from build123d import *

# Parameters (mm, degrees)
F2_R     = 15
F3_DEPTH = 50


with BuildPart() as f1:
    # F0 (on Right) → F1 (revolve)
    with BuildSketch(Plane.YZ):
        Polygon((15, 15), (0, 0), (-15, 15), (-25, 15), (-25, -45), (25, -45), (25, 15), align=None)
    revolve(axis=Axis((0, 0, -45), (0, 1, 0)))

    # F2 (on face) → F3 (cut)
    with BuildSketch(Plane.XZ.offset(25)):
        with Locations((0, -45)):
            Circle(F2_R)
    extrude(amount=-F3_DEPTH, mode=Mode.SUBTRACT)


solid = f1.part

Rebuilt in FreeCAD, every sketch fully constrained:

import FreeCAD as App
import Part
import Sketcher
from FreeCAD import Vector


def add_polygon(sketch, points):
    """Adds a closed chain of lines whose ends are joined by coincident constraints."""
    first, n = sketch.GeometryCount, len(points)
    for a, b in zip(points, points[1:] + points[:1]):
        sketch.addGeometry(Part.LineSegment(App.Vector(*a, 0), App.Vector(*b, 0)), False)
    for i in range(n):
        sketch.addConstraint(Sketcher.Constraint("Coincident", first + i, 2, first + (i + 1) % n, 1))

doc = App.newDocument("Part")
params = doc.addObject("Spreadsheet::Sheet", "Params")
for row, (alias, value) in enumerate([
    ("sketch1_width", "10 mm"),
    ("sketch1_width2", "50 mm"),
    ("sketch1_height", "60 mm"),
    ("revolution_angle", "360 deg"),
    ("sketch2_diameter", "30 mm"),
    ("pocket1_length", "50 mm"),
], start=1):
    params.set(f"A{row}", alias)
    params.set(f"B{row}", "=" + value)
    params.setAlias(f"B{row}", alias)

body = doc.addObject("PartDesign::Body", "Body")

# Sketch on YZ plane
sketch1 = doc.addObject("Sketcher::SketchObject", "Sketch")
body.addObject(sketch1)
sketch1.AttachmentSupport = (doc.YZ_Plane, [""])
sketch1.MapMode = "FlatFace"
add_polygon(sketch1, [(15, 15), (0, 0), (-15, 15), (-25, 15), (-25, -45), (25, -45), (25, 15)])  # lines 0-6
sketch1.addGeometry(Part.LineSegment(Vector(-25, -45, 0), Vector(25, -45, 0)), True)  # axis
sketch1.addConstraint([
    Sketcher.Constraint("Horizontal", 2),
    Sketcher.Constraint("Vertical", 3),
    Sketcher.Constraint("Horizontal", 4),
    Sketcher.Constraint("Vertical", 5),
    Sketcher.Constraint("Horizontal", 6),
    Sketcher.Constraint("Horizontal", 7),
    Sketcher.Constraint("Coincident", 0, 2, -1, 1),
    Sketcher.Constraint("Coincident", 7, 1, 3, 2),
    Sketcher.Constraint("Symmetric", 2, 2, 5, 2, -2),
    Sketcher.Constraint("Perpendicular", 0, 1),
    Sketcher.Constraint("Vertical", 5, 2, 7, 2),
    Sketcher.Constraint("Equal", 2, 6),
    Sketcher.Constraint("DistanceX", 2, 2, 2, 1, 10.0),
    Sketcher.Constraint("DistanceX", 4, 1, 4, 2, 50.0),
    Sketcher.Constraint("DistanceY", 3, 2, 3, 1, 60.0),
])
sketch1.setExpression("Constraints[19]", "Params.sketch1_width")
sketch1.setExpression("Constraints[20]", "Params.sketch1_width2")
sketch1.setExpression("Constraints[21]", "Params.sketch1_height")
revolution = doc.addObject("PartDesign::Revolution", "Revolution")
body.addObject(revolution)
revolution.Profile = sketch1
revolution.ReferenceAxis = (sketch1, ["Axis0"])
revolution.setExpression("Angle", "Params.revolution_angle")

# Sketch on XZ plane
sketch2 = doc.addObject("Sketcher::SketchObject", "Sketch001")
body.addObject(sketch2)
sketch2.AttachmentSupport = (doc.XZ_Plane, [""])
sketch2.MapMode = "FlatFace"
sketch2.AttachmentOffset = App.Placement(Vector(0, 0, 25), App.Rotation())
sketch2.addGeometry(Part.Circle(Vector(0, -45, 0), Vector(0, 0, 1), 15), False)
sketch2.addConstraint([
    Sketcher.Constraint("PointOnObject", 0, 3, -2),
    Sketcher.Constraint("Diameter", 0, 30.0),
    Sketcher.Constraint("DistanceY", 0, 3, -1, 1, 45.0),
])
sketch2.setExpression("Constraints[1]", "Params.sketch2_diameter")
pocket1 = doc.addObject("PartDesign::Pocket", "Pocket")
body.addObject(pocket1)
pocket1.Profile = sketch2
pocket1.setExpression("Length", "Params.pocket1_length")

doc.recompute()
